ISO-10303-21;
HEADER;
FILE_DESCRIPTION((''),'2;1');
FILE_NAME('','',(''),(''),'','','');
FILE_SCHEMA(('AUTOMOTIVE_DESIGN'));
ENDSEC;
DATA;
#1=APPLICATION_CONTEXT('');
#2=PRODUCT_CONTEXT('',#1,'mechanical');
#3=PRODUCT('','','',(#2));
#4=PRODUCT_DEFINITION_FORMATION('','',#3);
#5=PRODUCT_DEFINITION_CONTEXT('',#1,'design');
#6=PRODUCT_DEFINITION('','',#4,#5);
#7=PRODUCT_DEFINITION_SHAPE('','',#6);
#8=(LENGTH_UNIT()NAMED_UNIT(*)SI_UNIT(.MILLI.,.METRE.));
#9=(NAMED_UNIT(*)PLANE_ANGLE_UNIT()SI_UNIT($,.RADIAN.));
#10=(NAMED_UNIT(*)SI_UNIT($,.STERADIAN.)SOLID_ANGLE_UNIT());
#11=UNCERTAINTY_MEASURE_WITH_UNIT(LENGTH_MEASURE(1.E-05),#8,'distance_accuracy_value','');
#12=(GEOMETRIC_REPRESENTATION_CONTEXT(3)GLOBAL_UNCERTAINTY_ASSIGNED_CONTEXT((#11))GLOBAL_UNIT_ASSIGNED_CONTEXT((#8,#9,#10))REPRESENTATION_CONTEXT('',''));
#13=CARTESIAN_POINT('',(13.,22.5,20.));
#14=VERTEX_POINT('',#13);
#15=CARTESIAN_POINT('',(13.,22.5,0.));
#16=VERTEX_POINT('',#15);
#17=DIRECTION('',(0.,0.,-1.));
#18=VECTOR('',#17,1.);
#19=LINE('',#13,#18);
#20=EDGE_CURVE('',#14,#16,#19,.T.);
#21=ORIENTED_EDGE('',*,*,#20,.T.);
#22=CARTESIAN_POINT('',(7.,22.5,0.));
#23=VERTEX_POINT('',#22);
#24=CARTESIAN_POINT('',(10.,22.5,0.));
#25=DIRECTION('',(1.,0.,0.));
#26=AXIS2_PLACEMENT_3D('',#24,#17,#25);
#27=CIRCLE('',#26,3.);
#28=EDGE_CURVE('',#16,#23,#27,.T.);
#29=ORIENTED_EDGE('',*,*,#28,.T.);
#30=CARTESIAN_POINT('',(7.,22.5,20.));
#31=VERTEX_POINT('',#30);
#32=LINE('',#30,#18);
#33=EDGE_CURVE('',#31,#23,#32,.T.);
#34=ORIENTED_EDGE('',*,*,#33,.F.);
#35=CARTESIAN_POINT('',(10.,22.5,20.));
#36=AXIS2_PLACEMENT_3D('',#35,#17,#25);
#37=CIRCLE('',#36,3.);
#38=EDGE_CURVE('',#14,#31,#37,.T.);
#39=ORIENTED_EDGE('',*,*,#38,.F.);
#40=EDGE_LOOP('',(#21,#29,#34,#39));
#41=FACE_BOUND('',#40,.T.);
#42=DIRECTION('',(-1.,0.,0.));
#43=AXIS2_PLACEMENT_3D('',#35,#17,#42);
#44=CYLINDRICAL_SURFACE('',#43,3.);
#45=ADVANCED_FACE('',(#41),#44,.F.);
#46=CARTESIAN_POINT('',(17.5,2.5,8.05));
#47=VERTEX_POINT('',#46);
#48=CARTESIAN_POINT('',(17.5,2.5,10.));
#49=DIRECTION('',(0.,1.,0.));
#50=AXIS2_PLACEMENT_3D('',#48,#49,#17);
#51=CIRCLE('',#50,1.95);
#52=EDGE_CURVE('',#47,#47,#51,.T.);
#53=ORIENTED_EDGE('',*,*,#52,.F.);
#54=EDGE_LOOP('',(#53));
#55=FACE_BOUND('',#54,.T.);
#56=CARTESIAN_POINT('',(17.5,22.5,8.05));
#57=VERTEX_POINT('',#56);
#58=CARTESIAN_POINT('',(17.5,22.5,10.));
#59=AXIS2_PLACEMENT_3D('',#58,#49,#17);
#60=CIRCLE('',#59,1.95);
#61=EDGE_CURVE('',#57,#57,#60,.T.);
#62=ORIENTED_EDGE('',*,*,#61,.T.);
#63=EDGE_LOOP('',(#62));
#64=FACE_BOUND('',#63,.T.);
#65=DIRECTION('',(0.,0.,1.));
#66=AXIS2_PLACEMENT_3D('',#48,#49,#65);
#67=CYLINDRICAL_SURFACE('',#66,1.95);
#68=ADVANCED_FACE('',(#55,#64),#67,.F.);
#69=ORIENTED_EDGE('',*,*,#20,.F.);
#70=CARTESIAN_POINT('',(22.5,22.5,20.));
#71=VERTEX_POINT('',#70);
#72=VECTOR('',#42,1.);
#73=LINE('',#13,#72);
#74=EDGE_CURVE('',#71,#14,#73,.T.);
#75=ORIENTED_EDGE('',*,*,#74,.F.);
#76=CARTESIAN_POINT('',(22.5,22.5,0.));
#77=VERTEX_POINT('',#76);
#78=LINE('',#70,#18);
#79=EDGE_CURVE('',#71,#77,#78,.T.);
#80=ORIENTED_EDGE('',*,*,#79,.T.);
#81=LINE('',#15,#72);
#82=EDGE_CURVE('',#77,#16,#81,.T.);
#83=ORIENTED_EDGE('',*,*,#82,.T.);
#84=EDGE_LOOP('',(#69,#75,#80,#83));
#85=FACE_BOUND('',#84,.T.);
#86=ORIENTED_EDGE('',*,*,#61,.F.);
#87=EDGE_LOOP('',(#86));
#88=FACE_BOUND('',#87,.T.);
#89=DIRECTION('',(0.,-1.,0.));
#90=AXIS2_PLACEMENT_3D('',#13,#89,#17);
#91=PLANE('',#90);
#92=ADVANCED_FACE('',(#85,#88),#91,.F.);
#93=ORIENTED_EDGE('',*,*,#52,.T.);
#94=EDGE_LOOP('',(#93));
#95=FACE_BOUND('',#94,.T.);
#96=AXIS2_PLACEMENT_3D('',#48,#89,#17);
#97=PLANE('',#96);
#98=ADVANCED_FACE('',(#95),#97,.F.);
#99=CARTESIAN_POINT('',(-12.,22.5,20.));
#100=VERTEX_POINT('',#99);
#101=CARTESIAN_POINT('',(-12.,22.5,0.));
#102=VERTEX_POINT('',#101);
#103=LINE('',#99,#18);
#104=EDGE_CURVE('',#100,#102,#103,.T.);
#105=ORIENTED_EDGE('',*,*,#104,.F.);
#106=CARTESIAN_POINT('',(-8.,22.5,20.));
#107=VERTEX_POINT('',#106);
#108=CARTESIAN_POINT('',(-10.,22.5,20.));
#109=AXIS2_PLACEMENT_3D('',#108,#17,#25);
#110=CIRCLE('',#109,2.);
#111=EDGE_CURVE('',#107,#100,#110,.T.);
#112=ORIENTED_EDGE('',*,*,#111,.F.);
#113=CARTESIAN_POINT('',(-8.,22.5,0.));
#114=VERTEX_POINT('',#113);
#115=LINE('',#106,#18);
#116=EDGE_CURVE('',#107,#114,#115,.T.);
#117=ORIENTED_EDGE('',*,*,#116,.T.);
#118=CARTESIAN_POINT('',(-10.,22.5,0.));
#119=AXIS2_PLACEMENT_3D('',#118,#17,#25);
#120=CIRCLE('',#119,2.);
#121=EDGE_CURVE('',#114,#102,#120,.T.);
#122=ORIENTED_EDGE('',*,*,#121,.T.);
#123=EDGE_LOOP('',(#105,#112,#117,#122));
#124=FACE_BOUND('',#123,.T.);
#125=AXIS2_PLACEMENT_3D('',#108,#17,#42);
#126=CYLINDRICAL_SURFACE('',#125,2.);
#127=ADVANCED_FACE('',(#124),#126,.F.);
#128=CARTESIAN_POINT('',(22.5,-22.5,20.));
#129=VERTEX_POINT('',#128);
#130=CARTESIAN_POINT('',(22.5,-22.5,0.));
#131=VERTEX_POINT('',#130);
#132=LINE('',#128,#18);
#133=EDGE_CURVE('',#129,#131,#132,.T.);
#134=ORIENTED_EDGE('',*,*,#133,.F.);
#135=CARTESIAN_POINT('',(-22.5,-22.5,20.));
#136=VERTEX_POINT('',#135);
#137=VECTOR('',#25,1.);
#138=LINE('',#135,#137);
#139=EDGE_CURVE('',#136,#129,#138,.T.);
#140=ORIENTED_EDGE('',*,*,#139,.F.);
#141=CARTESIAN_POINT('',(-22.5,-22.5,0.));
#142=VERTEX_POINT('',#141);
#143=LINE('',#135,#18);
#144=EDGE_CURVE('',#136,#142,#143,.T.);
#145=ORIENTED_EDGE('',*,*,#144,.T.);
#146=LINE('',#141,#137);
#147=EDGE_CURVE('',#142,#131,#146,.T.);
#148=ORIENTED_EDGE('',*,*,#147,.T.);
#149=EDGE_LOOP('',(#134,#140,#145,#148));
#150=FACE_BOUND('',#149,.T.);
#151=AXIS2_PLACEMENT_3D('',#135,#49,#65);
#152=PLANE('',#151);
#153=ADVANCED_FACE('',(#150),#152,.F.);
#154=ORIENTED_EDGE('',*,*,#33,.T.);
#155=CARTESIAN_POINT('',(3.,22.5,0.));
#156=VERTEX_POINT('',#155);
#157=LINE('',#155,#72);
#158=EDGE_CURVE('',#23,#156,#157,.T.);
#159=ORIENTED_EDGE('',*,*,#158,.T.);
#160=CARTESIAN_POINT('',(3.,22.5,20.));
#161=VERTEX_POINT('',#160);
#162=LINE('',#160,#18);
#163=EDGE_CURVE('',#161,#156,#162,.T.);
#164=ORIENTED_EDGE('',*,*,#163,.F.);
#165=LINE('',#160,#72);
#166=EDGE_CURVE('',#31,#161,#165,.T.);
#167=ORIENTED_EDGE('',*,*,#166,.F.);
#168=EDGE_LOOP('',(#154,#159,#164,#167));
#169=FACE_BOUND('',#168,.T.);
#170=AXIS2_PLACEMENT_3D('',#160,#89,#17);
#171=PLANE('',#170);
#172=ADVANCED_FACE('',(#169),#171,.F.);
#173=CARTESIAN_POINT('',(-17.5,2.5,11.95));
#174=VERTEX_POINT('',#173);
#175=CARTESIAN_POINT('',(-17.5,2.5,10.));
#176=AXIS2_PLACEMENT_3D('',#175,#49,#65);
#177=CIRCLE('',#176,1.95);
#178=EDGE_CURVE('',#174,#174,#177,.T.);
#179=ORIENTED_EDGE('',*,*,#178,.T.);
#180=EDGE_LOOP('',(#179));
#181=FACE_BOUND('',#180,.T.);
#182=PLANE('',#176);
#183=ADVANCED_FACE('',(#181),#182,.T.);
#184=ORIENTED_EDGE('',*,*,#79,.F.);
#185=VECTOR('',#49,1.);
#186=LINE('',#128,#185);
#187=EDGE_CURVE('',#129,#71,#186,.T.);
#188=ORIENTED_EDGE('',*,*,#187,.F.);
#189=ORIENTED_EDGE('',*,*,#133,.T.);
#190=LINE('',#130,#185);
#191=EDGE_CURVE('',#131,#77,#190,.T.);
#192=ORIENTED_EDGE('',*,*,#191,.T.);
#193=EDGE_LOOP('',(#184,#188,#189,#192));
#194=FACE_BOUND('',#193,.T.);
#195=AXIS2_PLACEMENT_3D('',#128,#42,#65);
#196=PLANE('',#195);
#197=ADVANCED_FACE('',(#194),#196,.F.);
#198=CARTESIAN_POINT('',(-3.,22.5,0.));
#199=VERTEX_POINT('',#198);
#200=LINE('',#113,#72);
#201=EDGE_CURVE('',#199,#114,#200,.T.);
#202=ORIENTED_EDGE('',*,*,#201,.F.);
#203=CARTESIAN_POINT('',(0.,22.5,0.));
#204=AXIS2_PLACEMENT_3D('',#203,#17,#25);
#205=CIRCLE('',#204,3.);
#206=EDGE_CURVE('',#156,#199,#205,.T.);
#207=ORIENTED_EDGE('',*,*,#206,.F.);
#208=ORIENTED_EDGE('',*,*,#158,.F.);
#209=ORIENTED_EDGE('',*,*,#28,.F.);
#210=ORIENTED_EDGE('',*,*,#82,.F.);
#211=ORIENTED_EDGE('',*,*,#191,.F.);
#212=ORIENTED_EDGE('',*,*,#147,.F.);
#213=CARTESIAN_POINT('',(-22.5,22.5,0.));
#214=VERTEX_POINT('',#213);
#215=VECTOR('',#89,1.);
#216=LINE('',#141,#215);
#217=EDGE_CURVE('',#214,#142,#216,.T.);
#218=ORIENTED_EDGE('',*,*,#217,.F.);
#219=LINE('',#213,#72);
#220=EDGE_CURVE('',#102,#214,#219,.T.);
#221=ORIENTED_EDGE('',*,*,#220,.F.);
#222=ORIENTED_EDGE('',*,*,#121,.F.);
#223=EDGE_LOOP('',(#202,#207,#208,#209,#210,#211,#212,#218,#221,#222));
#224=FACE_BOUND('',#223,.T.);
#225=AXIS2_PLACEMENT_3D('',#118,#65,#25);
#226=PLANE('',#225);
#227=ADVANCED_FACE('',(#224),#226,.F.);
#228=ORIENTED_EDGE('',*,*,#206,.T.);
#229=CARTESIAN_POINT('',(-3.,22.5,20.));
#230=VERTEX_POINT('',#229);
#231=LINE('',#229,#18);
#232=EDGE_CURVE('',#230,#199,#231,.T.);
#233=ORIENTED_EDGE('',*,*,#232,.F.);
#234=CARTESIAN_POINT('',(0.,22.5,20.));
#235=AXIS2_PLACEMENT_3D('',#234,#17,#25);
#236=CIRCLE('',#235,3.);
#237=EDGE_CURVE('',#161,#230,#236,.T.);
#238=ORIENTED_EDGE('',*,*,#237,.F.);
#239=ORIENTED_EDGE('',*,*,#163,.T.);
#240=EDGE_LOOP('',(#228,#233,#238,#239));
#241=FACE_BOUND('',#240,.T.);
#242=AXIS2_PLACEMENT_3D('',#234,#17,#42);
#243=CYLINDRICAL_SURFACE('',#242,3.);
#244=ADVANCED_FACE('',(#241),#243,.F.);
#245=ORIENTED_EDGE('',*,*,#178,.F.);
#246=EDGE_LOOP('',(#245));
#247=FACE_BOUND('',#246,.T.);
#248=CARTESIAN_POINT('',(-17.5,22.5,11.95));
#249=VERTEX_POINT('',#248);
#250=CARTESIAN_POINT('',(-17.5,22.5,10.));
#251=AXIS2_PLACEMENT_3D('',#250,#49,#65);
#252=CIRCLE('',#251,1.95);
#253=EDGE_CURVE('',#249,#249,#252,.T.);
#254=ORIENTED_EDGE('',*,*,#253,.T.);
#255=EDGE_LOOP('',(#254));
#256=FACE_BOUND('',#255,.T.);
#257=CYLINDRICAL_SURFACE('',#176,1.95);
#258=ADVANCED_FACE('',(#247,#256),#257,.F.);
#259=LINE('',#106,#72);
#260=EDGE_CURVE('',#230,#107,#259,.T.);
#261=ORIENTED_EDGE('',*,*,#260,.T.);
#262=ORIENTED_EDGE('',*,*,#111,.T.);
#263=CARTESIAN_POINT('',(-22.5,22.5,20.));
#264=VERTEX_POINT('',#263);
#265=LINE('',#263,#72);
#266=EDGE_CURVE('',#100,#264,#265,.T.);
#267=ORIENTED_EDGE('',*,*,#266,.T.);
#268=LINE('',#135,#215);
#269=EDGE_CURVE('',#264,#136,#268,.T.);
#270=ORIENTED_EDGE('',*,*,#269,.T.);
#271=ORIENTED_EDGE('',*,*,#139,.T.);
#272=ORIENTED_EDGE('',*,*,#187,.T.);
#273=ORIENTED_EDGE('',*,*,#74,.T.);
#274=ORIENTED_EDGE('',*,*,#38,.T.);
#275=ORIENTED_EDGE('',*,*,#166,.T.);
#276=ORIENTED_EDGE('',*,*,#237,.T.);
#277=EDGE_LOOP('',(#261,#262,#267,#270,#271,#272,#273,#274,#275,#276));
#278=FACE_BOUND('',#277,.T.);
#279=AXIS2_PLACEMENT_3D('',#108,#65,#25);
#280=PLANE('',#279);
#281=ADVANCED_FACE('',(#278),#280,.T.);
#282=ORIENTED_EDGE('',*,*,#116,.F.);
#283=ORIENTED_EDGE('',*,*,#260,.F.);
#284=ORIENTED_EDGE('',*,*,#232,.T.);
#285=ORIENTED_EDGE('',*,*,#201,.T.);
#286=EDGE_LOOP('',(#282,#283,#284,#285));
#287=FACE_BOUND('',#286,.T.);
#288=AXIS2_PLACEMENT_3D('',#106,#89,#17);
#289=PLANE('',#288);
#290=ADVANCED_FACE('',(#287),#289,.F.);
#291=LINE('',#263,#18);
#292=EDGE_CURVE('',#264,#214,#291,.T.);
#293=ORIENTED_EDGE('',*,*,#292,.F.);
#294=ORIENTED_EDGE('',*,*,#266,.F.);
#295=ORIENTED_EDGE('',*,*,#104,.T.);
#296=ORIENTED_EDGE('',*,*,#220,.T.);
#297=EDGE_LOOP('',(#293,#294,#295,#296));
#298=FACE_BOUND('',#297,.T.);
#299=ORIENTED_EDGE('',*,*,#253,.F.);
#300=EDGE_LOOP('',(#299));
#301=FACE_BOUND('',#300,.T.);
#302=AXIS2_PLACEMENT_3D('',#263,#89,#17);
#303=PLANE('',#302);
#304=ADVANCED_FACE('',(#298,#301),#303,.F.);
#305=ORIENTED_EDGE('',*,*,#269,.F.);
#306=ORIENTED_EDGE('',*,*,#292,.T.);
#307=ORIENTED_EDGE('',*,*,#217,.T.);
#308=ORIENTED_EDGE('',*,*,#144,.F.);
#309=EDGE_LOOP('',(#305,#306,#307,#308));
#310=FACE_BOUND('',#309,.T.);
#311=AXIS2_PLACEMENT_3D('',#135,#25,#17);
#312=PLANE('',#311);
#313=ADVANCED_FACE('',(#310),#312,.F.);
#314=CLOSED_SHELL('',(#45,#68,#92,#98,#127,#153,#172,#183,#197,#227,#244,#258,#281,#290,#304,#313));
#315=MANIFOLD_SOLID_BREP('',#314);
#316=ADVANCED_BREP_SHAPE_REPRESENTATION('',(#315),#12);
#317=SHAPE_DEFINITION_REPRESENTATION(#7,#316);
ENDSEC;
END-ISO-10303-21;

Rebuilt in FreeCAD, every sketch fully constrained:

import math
import FreeCAD as App
import Part
import Sketcher

V = App.Vector
Q = App.Units.Quantity

doc = App.newDocument("Part")
body = doc.addObject("PartDesign::Body", "Body")

# Sketch on XY plane
sketch1 = body.newObject("Sketcher::SketchObject", "Sketch")
sketch1.AttachmentSupport = (doc.getObject("XY_Plane"), [""])
sketch1.MapMode = "FlatFace"
sketch1.addGeometry([
    Part.LineSegment(V(-22.5, -22.5, 0), V(22.5, -22.5, 0)),  # 0
    Part.LineSegment(V(22.5, -22.5, 0), V(22.5, 22.5, 0)),  # 1
    Part.LineSegment(V(22.5, 22.5, 0), V(13, 22.5, 0)),  # 2
    Part.ArcOfCircle(Part.Circle(V(10, 22.5, 0), V(0, 0, 1), 3), math.radians(180), math.radians(360)),  # 3
    Part.LineSegment(V(7, 22.5, 0), V(3, 22.5, 0)),  # 4
    Part.ArcOfCircle(Part.Circle(V(0, 22.5, 0), V(0, 0, 1), 3), math.radians(180), math.radians(360)),  # 5
    Part.LineSegment(V(-3, 22.5, 0), V(-8, 22.5, 0)),  # 6
    Part.ArcOfCircle(Part.Circle(V(-10, 22.5, 0), V(0, 0, 1), 2), math.radians(180), math.radians(360)),  # 7
    Part.LineSegment(V(-12, 22.5, 0), V(-22.5, 22.5, 0)),  # 8
    Part.LineSegment(V(-22.5, 22.5, 0), V(-22.5, -22.5, 0)),  # 9
], False)
sketch1.addConstraint([
    Sketcher.Constraint("Coincident", 0, 2, 1, 1),
    Sketcher.Constraint("Coincident", 1, 2, 2, 1),
    Sketcher.Constraint("Coincident", 2, 2, 3, 2),
    Sketcher.Constraint("Coincident", 3, 1, 4, 1),
    Sketcher.Constraint("Coincident", 4, 2, 5, 2),
    Sketcher.Constraint("Coincident", 5, 1, 6, 1),
    Sketcher.Constraint("Coincident", 6, 2, 7, 2),
    Sketcher.Constraint("Coincident", 7, 1, 8, 1),
    Sketcher.Constraint("Coincident", 8, 2, 9, 1),
    Sketcher.Constraint("Coincident", 9, 2, 0, 1),
    Sketcher.Constraint("Horizontal", 0),
    Sketcher.Constraint("Vertical", 1),
    Sketcher.Constraint("Horizontal", 2),
    Sketcher.Constraint("Horizontal", 4),
    Sketcher.Constraint("Horizontal", 6),
    Sketcher.Constraint("Horizontal", 8),
    Sketcher.Constraint("Vertical", 9),
    Sketcher.Constraint("Equal", 3, 5),
    Sketcher.Constraint("Symmetric", 0, 2, 8, 2, -1, 1),
    Sketcher.Constraint("Symmetric", 3, 3, 7, 3, -2),
    Sketcher.Constraint("Symmetric", 4, 2, 5, 1, -2),
    Sketcher.Constraint("Horizontal", 3, 3, 5, 3),
    Sketcher.Constraint("Horizontal", 7, 3, 1, 2),
    Sketcher.Constraint("Horizontal", 2, 2, 3, 1),
    Sketcher.Constraint("Horizontal", 6, 2, 7, 1),
    Sketcher.Constraint("Equal", 0, 1),
    Sketcher.Constraint("Radius", 3, Q("3 mm")),
    Sketcher.Constraint("Radius", 7, Q("2 mm")),
    Sketcher.Constraint("DistanceX", 0, 1, 0, 2, Q("45 mm")),
    Sketcher.Constraint("DistanceX", 4, 2, 4, 1, Q("4 mm")),
])
pad1 = body.newObject("PartDesign::Pad", "Pad")
pad1.Profile = sketch1
pad1.Length = 20

# Sketch on XZ plane
sketch2 = body.newObject("Sketcher::SketchObject", "Sketch001")
sketch2.AttachmentSupport = (doc.getObject("XZ_Plane"), [""])
sketch2.MapMode = "FlatFace"
sketch2.AttachmentOffset = App.Placement(V(0, 0, -22.5), App.Rotation())
sketch2.addGeometry([
    Part.Circle(V(-17.5, 10, 0), V(0, 0, 1), 1.9),
    Part.Circle(V(17.5, 10, 0), V(0, 0, 1), 1.9),
], False)
sketch2.addConstraint([
    Sketcher.Constraint("Equal", 0, 1),
    Sketcher.Constraint("Symmetric", 0, 3, 1, 3, -2),
    Sketcher.Constraint("Diameter", 0, Q("3.9 mm")),
    Sketcher.Constraint("DistanceY", -1, 1, 0, 3, Q("10 mm")),
    Sketcher.Constraint("DistanceX", 0, 3, 1, 3, Q("35 mm")),
])
pocket1 = body.newObject("PartDesign::Pocket", "Pocket")
pocket1.Profile = sketch2
pocket1.Length = 20
pocket1.Reversed = True

doc.recompute()
